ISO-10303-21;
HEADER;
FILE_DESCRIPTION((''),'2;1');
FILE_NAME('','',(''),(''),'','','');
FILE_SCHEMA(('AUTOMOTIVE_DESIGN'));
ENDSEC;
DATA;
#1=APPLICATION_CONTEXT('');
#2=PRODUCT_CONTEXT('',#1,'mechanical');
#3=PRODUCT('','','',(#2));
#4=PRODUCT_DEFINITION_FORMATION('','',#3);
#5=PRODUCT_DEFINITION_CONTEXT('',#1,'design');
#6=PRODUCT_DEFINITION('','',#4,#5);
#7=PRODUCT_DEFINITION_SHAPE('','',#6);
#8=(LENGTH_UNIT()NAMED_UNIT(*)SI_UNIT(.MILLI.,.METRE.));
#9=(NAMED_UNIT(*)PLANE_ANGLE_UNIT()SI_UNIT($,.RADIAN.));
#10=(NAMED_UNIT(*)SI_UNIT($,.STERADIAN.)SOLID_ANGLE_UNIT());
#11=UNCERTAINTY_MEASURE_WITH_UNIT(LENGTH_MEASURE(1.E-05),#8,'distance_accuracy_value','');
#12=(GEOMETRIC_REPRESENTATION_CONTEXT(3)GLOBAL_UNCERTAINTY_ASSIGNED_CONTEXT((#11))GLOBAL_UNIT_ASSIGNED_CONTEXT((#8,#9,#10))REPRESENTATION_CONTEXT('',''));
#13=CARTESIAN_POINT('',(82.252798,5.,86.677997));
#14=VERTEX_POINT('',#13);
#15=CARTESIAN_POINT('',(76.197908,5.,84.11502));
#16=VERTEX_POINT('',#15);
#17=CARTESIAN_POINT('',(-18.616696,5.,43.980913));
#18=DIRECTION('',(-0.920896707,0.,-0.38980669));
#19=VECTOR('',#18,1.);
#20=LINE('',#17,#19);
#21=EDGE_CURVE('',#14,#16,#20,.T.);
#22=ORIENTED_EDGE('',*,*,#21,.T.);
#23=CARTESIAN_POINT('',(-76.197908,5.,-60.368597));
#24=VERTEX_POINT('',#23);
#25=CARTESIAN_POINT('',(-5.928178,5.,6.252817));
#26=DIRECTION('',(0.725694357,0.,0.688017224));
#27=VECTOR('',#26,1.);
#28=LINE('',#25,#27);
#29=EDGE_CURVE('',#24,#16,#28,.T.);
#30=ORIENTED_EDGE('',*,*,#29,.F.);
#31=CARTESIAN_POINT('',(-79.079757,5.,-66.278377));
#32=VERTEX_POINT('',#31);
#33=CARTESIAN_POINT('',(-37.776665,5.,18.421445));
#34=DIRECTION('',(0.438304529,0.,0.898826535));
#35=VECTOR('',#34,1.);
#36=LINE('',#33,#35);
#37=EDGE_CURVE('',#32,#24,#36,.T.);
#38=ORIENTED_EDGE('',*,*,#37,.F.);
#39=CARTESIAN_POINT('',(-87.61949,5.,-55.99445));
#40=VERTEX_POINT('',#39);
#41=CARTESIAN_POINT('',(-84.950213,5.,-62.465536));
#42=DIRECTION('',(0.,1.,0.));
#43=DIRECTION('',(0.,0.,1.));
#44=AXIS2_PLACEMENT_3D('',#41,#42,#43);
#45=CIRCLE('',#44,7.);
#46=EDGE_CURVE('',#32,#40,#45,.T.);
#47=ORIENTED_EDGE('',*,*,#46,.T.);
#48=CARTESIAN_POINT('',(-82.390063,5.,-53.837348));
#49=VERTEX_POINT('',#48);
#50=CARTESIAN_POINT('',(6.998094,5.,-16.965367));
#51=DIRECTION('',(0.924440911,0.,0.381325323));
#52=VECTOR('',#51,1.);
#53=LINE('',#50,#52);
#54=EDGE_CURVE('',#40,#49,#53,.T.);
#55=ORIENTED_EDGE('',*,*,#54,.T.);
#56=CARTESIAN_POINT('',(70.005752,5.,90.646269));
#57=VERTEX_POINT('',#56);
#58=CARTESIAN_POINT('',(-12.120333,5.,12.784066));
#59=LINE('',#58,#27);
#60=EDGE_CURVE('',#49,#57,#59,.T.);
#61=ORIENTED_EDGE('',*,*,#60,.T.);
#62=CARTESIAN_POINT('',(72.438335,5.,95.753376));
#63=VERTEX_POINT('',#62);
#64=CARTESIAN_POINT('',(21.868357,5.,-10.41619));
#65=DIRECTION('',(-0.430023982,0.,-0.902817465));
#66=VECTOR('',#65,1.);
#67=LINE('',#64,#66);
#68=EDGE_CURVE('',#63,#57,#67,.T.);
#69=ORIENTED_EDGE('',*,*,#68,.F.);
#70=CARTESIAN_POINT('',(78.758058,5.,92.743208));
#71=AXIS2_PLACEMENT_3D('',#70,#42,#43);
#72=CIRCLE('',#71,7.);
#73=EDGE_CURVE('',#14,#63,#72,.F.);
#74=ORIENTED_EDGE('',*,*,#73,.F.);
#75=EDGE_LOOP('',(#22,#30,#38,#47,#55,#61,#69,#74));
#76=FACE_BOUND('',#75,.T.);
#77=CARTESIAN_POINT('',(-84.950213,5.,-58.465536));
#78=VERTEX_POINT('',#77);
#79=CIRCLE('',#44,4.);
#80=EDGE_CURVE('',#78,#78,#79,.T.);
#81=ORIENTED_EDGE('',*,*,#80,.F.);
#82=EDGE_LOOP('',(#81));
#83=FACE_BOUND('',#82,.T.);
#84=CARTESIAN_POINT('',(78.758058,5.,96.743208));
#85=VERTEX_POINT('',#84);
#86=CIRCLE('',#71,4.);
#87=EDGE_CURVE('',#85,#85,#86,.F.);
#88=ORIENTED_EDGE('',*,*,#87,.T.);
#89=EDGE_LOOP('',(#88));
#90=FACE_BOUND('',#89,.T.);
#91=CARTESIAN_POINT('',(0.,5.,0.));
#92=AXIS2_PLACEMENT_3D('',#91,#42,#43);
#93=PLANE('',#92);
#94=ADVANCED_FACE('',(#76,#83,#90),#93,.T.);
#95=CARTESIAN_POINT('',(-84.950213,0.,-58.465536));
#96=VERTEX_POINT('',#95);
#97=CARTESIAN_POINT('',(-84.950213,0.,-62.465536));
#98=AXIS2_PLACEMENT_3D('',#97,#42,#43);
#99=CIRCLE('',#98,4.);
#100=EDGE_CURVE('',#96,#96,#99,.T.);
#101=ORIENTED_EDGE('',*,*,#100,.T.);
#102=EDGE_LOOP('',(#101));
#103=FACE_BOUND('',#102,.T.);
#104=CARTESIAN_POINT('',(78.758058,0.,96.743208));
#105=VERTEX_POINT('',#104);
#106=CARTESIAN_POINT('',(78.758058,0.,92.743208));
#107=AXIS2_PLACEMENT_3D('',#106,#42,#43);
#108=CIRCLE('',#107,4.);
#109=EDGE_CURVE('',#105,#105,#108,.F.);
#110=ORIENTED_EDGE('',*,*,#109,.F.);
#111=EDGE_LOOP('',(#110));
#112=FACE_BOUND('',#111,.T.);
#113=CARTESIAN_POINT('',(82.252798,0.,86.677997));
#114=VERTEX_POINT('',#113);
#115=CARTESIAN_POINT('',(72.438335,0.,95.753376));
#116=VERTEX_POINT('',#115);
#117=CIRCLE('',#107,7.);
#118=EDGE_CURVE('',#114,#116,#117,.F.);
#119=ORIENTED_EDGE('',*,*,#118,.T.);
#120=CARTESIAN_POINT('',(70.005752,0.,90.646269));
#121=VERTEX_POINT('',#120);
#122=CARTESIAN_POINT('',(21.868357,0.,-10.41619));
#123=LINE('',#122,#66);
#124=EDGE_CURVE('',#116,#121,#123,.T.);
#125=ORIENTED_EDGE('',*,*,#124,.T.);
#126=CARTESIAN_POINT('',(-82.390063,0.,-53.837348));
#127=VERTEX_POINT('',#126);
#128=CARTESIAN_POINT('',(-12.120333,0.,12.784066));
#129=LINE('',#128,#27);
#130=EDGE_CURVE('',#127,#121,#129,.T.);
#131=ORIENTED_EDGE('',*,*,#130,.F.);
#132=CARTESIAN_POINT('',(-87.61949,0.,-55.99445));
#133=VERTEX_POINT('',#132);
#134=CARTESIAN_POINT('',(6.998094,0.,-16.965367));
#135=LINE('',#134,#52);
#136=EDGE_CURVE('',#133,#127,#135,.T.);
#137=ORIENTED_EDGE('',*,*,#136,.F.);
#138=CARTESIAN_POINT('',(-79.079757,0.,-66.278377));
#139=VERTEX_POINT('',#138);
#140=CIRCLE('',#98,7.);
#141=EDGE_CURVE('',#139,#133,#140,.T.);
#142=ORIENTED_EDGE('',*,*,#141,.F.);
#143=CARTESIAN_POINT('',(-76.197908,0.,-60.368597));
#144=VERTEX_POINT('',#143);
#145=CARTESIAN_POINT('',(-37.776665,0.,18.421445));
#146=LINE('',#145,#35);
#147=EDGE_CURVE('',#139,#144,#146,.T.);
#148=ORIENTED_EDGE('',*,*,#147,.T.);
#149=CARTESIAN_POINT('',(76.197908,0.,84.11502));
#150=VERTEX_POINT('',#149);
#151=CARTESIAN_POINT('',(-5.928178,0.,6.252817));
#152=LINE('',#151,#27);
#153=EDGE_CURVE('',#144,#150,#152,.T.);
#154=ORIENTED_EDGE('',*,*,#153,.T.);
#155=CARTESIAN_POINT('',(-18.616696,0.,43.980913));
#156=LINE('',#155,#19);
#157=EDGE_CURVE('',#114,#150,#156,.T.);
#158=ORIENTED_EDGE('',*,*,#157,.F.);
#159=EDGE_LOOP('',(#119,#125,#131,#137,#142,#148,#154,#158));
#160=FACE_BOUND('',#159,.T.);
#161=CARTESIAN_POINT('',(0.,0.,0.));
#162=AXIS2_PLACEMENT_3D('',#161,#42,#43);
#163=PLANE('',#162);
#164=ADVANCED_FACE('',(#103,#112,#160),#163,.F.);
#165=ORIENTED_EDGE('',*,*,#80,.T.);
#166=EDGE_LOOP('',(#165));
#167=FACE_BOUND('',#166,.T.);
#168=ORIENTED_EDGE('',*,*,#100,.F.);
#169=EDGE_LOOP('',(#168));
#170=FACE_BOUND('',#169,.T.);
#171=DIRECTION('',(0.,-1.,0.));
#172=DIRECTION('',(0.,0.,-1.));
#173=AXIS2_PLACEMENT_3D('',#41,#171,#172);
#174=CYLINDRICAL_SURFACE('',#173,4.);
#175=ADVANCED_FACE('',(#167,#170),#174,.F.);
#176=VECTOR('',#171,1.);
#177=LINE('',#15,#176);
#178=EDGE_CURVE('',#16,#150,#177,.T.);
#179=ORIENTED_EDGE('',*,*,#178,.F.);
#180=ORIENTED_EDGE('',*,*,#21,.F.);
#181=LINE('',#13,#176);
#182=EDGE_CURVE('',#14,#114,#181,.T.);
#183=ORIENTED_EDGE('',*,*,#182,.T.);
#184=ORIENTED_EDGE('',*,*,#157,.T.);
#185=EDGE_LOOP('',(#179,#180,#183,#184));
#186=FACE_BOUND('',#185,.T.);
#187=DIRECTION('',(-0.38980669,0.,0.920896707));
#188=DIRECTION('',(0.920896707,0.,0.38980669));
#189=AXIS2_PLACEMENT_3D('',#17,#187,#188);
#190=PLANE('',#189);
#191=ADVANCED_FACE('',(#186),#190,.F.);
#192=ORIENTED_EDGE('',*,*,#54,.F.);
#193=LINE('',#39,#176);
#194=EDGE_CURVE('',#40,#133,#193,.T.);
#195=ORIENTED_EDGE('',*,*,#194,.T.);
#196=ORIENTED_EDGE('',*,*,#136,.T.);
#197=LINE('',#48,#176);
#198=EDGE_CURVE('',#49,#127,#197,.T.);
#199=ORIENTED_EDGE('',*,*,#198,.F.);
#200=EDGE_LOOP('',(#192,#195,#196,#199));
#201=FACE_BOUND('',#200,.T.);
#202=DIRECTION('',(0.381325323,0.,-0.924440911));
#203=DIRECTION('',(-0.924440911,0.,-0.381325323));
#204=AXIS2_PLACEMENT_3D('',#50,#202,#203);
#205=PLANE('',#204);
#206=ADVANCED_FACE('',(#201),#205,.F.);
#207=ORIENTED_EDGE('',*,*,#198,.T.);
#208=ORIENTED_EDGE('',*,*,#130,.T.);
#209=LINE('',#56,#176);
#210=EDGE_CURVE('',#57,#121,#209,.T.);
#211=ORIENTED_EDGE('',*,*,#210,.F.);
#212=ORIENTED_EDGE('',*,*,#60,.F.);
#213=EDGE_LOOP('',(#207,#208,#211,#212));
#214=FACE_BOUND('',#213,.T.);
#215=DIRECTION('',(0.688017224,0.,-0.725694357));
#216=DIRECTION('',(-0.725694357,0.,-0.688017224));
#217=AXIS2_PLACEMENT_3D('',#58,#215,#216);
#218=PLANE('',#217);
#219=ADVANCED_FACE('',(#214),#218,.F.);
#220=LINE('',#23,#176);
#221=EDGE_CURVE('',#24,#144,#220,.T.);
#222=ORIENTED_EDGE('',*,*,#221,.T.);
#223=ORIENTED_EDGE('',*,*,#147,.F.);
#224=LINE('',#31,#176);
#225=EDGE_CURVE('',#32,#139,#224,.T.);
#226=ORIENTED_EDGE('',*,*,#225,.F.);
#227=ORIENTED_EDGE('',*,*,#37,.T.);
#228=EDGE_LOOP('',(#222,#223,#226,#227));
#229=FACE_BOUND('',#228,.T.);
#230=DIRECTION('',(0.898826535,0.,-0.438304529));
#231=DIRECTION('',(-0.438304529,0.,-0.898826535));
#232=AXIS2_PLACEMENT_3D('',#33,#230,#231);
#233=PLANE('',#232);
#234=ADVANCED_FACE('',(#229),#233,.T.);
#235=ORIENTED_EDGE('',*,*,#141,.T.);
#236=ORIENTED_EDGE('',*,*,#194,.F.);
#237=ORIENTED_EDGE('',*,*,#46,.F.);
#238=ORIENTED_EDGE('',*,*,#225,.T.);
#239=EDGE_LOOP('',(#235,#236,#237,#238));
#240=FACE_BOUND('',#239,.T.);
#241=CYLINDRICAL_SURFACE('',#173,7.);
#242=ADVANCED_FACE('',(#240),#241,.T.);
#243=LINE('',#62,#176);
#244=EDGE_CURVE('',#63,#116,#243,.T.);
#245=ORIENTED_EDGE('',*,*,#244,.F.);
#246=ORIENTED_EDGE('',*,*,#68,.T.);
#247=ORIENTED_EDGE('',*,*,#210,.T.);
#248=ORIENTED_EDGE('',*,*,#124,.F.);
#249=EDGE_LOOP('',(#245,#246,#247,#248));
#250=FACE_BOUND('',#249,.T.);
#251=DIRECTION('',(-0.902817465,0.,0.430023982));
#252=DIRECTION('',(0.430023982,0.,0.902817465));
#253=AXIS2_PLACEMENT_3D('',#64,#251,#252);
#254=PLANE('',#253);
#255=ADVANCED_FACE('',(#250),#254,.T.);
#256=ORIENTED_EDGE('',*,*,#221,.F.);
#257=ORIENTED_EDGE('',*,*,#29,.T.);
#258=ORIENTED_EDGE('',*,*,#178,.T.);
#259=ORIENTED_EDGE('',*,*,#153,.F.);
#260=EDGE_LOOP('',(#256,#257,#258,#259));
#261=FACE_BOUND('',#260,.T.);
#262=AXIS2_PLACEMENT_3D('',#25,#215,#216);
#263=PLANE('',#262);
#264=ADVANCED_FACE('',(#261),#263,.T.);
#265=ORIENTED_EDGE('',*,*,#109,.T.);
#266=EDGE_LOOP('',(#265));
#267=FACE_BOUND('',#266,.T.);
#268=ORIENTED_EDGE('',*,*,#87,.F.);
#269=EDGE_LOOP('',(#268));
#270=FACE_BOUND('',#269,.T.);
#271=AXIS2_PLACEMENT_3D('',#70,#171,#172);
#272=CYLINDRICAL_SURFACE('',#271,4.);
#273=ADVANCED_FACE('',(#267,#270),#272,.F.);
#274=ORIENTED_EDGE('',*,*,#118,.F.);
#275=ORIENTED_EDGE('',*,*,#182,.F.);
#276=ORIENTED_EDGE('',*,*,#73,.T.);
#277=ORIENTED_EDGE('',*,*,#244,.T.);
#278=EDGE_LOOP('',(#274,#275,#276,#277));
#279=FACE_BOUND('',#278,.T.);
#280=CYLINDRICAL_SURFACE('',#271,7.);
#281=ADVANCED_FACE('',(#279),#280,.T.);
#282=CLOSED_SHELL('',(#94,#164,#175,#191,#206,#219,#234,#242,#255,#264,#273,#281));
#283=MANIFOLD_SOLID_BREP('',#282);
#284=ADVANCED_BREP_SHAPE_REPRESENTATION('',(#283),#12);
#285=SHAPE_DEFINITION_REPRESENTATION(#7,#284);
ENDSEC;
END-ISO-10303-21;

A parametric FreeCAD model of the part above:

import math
import FreeCAD as App
import Part
import Sketcher

V = App.Vector
Q = App.Units.Quantity

doc = App.newDocument("Part")
body = doc.addObject("PartDesign::Body", "Body")

sketch1 = doc.addObject("Sketcher::SketchObject", "Sketch")
body.addObject(sketch1)
sketch1.AttachmentSupport = (doc.XZ_Plane, [""])
sketch1.MapMode = "FlatFace"
sketch1.addGeometry([
    Part.LineSegment(V(-76.2, -60.4, 0), V(-79.1, -66.3, 0)),
    Part.ArcOfCircle(Part.Circle(V(-85, -62.5, 0), V(0, 0, 1), 7), math.radians(112), math.radians(327)),
    Part.LineSegment(V(-87.6, -56, 0), V(-82.4, -53.8, 0)),
    Part.LineSegment(V(-82.4, -53.8, 0), V(70, 90.6, 0)),
    Part.LineSegment(V(70, 90.6, 0), V(72.4, 95.8, 0)),
    Part.ArcOfCircle(Part.Circle(V(78.8, 92.7, 0), V(0, 0, 1), 7), math.radians(-60), math.radians(155)),
    Part.LineSegment(V(82.3, 86.7, 0), V(76.2, 84.1, 0)),
    Part.LineSegment(V(76.2, 84.1, 0), V(-76.2, -60.4, 0)),
    Part.Circle(V(78.8, 92.7, 0), V(0, 0, 1), 4),
    Part.Circle(V(-85, -62.5, 0), V(0, 0, 1), 4),
], False)
sketch1.addConstraint([
    Sketcher.Constraint("Coincident", 0, 2, 1, 2),
    Sketcher.Constraint("Tangent", 1, 1, 2, 1),
    Sketcher.Constraint("Coincident", 2, 2, 3, 1),
    Sketcher.Constraint("Coincident", 3, 2, 4, 1),
    Sketcher.Constraint("Tangent", 4, 2, 5, 2),
    Sketcher.Constraint("Coincident", 5, 1, 6, 1),
    Sketcher.Constraint("Coincident", 6, 2, 7, 1),
    Sketcher.Constraint("Coincident", 7, 2, 0, 1),
    Sketcher.Constraint("Coincident", 8, 3, 5, 3),
    Sketcher.Constraint("Coincident", 9, 3, 1, 3),
    Sketcher.Constraint("Equal", 1, 5),
    Sketcher.Constraint("Equal", 8, 9),
    Sketcher.Constraint("Parallel", 3, 7),
    Sketcher.Constraint("Equal", 2, 4),
    Sketcher.Constraint("Equal", 0, 6),
    Sketcher.Constraint("Equal", 3, 7),
    Sketcher.Constraint("Diameter", 8, Q("8 mm")),
    Sketcher.Constraint("Radius", 1, Q("7 mm")),
    Sketcher.Constraint("Distance", 3, Q("210 mm")),
    Sketcher.Constraint("DistanceX", -1, 1, 5, 1, Q("82.252798 mm")),
    Sketcher.Constraint("DistanceY", 1, 1, 2, 2, Q("2.157102 mm")),
    Sketcher.Constraint("DistanceX", 2, 2, 4, 2, Q("154.828398 mm")),
    Sketcher.Constraint("DistanceY", -1, 1, 5, 3, Q("92.743208 mm")),
    Sketcher.Constraint("DistanceX", 1, 1, -1, 1, Q("87.61949 mm")),
    Sketcher.Constraint("DistanceY", 1, 1, -1, 1, Q("55.99445 mm")),
    Sketcher.Constraint("DistanceY", -1, 1, 3, 2, Q("90.646269 mm")),
    Sketcher.Constraint("DistanceY", -1, 1, 6, 2, Q("84.11502 mm")),
    Sketcher.Constraint("DistanceY", 0, 2, 1, 3, Q("3.812841 mm")),
])
pad1 = doc.addObject("PartDesign::Pad", "Pad")
body.addObject(pad1)
pad1.Profile = sketch1
pad1.Length = 5
pad1.Reversed = True

doc.recompute()
